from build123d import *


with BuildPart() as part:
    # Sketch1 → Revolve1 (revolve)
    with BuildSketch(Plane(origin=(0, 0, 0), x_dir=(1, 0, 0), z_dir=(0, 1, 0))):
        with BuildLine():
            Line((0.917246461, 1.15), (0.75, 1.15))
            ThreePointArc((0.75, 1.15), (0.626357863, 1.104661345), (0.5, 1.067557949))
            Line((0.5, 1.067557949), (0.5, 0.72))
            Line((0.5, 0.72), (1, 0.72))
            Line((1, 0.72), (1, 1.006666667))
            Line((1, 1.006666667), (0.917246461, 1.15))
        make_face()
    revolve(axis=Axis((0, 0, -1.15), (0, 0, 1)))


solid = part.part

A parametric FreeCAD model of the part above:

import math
import FreeCAD as App
import Part
import Sketcher
Q = App.Units.Quantity

doc = App.newDocument("Part")
body = doc.addObject("PartDesign::Body", "Body")

# Sketch on XZ plane
sketch1 = doc.addObject("Sketcher::SketchObject", "Sketch")
body.addObject(sketch1)
sketch1.AttachmentSupport = (doc.XZ_Plane, [""])
sketch1.MapMode = "FlatFace"
sketch1.addGeometry([
    Part.LineSegment(App.Vector(0.917246, -1.15, 0), App.Vector(0.75, -1.15, 0)),  # 0
    Part.ArcOfCircle(Part.Circle(App.Vector(0, -3.00405, 0), App.Vector(0, 0, 1), 2), math.radians(67.975687), math.radians(75.522488)),  # 1
    Part.LineSegment(App.Vector(0.5, -1.067558, 0), App.Vector(0.5, -0.72, 0)),  # 2
    Part.LineSegment(App.Vector(0.5, -0.72, 0), App.Vector(1, -0.72, 0)),  # 3
    Part.LineSegment(App.Vector(1, -0.72, 0), App.Vector(1, -1.006667, 0)),  # 4
    Part.LineSegment(App.Vector(1, -1.006667, 0), App.Vector(0.917246, -1.15, 0)),  # 5
], False)
sketch1.addConstraint([
    Sketcher.Constraint("Coincident", 0, 2, 1, 1),
    Sketcher.Constraint("Coincident", 1, 2, 2, 1),
    Sketcher.Constraint("Coincident", 2, 2, 3, 1),
    Sketcher.Constraint("Coincident", 3, 2, 4, 1),
    Sketcher.Constraint("Coincident", 4, 2, 5, 1),
    Sketcher.Constraint("Coincident", 5, 2, 0, 1),
    Sketcher.Constraint("Horizontal", 0),
    Sketcher.Constraint("Vertical", 2),
    Sketcher.Constraint("Horizontal", 3),
    Sketcher.Constraint("Vertical", 4),
    Sketcher.Constraint("PointOnObject", 1, 3, -2),
    Sketcher.Constraint("Radius", 1, Q("2 mm")),
    Sketcher.Constraint("Angle", 5, Q("-120 deg")),
    Sketcher.Constraint("DistanceX", 3, 1, 3, 2, Q("0.5 mm")),
    Sketcher.Constraint("DistanceX", -1, 1, 3, 2, Q("1 mm")),
    Sketcher.Constraint("DistanceX", -1, 1, 0, 2, Q("0.75 mm")),
    Sketcher.Constraint("DistanceY", 0, 2, -1, 1, Q("1.15 mm")),
    Sketcher.Constraint("DistanceY", 2, 2, -1, 1, Q("0.72 mm")),
    Sketcher.Constraint("DistanceX", 0, 2, 0, 1, Q("0.167246 mm")),
])
revolution = doc.addObject("PartDesign::Revolution", "Revolution")
body.addObject(revolution)
revolution.Profile = sketch1
revolution.ReferenceAxis = (sketch1, ["V_Axis"])
revolution.Angle = 360

doc.recompute()
